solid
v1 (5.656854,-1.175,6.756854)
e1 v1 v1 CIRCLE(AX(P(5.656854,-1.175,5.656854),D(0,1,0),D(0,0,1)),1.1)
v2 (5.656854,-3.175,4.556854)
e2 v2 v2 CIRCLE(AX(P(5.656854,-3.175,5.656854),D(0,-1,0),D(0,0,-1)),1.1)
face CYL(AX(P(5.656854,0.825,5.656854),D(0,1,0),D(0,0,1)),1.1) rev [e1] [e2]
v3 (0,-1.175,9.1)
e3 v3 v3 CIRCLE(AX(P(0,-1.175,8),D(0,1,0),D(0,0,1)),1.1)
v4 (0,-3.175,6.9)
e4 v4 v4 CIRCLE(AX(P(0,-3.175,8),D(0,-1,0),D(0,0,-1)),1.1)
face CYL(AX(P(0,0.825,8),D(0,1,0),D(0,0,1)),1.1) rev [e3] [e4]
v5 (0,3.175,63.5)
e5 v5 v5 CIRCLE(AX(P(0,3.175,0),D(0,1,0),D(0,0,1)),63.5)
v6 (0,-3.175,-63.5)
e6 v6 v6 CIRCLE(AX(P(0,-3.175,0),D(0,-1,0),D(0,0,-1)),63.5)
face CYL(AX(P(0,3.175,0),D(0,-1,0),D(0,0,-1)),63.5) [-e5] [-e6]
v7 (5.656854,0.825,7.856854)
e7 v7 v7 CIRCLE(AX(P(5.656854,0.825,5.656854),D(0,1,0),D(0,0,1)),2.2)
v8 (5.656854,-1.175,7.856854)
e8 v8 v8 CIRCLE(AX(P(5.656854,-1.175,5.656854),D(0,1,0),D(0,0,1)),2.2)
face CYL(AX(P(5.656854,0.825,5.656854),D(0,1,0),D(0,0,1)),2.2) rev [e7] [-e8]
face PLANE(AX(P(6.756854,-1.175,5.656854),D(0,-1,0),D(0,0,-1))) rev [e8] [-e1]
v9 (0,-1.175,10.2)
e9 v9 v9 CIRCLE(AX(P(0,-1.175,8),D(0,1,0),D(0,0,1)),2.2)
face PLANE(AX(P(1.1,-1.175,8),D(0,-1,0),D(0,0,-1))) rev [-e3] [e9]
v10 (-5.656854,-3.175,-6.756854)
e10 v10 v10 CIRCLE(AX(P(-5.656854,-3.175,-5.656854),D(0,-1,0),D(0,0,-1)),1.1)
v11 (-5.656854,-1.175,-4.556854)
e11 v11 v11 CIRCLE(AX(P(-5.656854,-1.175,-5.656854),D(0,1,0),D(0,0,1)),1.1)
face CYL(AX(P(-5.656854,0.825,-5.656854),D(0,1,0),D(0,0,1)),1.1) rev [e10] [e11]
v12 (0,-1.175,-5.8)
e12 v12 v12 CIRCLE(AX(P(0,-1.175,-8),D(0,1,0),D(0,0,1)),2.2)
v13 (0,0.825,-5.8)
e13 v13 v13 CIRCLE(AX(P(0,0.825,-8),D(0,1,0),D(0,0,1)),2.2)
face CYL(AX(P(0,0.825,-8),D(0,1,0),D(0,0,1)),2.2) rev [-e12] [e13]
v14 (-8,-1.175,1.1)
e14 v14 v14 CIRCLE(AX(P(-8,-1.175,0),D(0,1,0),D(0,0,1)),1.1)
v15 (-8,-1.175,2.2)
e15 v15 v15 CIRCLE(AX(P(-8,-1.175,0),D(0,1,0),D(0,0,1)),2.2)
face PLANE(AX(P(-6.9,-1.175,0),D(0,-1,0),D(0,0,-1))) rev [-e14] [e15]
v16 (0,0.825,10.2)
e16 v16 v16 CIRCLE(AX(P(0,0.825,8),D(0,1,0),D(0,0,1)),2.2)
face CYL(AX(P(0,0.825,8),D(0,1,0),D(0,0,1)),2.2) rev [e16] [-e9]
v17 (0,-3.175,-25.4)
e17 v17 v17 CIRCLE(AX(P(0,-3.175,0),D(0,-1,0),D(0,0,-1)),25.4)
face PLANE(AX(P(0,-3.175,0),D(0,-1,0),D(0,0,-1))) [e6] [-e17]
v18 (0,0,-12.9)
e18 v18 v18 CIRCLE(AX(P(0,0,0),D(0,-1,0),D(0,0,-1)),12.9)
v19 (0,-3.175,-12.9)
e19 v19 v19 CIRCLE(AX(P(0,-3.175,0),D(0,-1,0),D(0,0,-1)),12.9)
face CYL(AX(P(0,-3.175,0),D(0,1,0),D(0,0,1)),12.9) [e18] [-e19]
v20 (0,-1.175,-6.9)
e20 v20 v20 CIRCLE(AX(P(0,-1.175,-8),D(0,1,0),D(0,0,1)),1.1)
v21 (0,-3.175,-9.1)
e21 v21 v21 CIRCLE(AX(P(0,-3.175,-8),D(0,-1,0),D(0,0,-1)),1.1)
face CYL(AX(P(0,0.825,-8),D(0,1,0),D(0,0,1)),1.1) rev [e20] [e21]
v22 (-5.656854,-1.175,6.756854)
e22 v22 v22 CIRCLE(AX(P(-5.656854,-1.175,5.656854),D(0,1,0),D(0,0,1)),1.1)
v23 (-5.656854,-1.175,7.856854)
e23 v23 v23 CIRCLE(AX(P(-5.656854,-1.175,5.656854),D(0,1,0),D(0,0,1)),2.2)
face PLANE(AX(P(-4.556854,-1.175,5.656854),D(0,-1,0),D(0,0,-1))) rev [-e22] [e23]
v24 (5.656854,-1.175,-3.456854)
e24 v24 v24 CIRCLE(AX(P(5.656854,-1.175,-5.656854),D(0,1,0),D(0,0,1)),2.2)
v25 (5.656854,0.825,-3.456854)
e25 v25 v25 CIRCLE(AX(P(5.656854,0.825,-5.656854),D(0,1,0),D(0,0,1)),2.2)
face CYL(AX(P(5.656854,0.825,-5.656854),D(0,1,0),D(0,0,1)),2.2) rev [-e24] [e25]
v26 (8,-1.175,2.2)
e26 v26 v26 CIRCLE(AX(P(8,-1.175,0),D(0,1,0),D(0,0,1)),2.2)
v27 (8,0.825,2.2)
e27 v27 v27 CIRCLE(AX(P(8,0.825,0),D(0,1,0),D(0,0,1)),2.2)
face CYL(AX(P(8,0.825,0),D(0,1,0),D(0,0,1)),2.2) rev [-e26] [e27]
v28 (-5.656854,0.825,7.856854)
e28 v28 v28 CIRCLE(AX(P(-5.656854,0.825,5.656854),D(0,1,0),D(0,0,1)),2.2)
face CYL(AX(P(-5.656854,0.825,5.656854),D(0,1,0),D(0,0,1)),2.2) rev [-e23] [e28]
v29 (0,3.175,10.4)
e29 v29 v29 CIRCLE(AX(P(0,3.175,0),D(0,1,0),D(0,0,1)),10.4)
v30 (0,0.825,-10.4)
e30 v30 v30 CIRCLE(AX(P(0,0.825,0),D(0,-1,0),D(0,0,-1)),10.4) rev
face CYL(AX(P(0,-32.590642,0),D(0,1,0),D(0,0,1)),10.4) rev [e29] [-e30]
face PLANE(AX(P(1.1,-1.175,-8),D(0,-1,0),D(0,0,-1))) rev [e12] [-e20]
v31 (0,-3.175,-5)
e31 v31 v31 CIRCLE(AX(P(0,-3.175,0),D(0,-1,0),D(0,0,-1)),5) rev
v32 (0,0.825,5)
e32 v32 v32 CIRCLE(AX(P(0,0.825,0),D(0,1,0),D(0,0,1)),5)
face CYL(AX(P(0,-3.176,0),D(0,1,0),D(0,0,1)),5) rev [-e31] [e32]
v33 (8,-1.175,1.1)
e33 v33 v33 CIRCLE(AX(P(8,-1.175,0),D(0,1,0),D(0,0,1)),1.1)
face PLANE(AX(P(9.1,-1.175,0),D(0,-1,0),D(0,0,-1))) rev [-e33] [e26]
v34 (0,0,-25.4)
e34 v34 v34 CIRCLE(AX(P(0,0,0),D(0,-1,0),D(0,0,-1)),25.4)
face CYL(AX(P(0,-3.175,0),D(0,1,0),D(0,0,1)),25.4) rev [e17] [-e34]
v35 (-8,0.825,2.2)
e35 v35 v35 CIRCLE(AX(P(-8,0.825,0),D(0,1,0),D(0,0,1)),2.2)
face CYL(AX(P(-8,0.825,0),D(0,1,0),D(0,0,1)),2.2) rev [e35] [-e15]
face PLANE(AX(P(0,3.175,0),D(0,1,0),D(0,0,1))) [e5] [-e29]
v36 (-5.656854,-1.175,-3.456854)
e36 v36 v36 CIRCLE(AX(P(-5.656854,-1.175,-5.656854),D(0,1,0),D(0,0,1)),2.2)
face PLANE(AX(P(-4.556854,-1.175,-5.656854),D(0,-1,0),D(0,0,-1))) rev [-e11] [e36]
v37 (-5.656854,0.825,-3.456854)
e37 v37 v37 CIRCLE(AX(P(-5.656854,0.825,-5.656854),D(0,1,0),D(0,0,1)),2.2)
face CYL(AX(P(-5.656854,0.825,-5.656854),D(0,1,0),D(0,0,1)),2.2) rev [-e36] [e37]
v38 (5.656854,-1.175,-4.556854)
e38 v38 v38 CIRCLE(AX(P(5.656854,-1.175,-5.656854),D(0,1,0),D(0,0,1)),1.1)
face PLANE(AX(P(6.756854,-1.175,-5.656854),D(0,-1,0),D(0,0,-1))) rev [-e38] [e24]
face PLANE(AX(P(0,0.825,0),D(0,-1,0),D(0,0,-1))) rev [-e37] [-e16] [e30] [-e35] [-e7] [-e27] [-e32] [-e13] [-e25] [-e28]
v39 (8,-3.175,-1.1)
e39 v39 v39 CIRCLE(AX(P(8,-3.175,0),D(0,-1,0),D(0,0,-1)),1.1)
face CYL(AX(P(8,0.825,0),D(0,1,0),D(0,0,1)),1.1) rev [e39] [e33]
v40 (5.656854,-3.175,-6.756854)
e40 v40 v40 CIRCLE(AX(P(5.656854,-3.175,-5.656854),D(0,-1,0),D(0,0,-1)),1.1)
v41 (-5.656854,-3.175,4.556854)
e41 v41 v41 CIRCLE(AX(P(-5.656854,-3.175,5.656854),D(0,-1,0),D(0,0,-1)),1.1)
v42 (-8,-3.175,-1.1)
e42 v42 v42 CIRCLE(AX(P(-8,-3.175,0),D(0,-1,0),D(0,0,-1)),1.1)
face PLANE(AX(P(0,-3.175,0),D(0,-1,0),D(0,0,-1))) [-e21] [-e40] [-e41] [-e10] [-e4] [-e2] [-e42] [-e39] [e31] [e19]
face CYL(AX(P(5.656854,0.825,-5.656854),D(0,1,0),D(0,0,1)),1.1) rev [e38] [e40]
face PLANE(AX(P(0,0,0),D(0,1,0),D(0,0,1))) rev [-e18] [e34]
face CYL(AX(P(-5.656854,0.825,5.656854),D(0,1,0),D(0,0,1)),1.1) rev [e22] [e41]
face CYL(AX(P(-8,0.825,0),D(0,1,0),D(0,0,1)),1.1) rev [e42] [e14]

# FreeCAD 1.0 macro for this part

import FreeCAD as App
import Part
import Sketcher

V = App.Vector
Q = App.Units.Quantity

doc = App.newDocument("Part")
body = doc.addObject("PartDesign::Body", "Body")

# Sketch on XZ plane
sketch1 = body.newObject("Sketcher::SketchObject", "Sketch")
sketch1.AttachmentSupport = (doc.getObject("XZ_Plane"), [""])
sketch1.MapMode = "FlatFace"
sketch1.addGeometry(Part.Circle(V(0, 0, 0), V(0, 0, 1), 64), False)
sketch1.addConstraint(Sketcher.Constraint("Coincident", 0, 3, -1, 1))
sketch1.addConstraint(Sketcher.Constraint("Diameter", 0, Q("127 mm")))
pad1 = body.newObject("PartDesign::Pad", "Pad")
pad1.Profile = sketch1
pad1.Length = 3.175
pad1.Reversed = True

# Sketch on XZ plane
sketch2 = body.newObject("Sketcher::SketchObject", "Sketch001")
sketch2.AttachmentSupport = (doc.getObject("XZ_Plane"), [""])
sketch2.MapMode = "FlatFace"
sketch2.addGeometry(Part.Circle(V(0, 0, 0), V(0, 0, 1), 13), False)
sketch2.addConstraint(Sketcher.Constraint("Coincident", 0, 3, -1, 1))
sketch2.addConstraint(Sketcher.Constraint("Diameter", 0, Q("25.8 mm")))
pad2 = body.newObject("PartDesign::Pad", "Pad001")
pad2.Profile = sketch2
pad2.Length = 3.175

# Sketch on XZ plane
sketch3 = body.newObject("Sketcher::SketchObject", "Sketch002")
sketch3.AttachmentSupport = (doc.getObject("XZ_Plane"), [""])
sketch3.MapMode = "FlatFace"
sketch3.AttachmentOffset = App.Placement(V(0, 0, 3.175), App.Rotation())
sketch3.addGeometry(Part.Circle(V(0, 0, 0), V(0, 0, 1), 64), False)
sketch3.addGeometry(Part.Circle(V(0, 0, 0), V(0, 0, 1), 25), False)
sketch3.addConstraint(Sketcher.Constraint("Coincident", 0, 3, -1, 1))
sketch3.addConstraint(Sketcher.Constraint("Coincident", 1, 3, -1, 1))
sketch3.addConstraint(Sketcher.Constraint("Diameter", 0, Q("127 mm")))
sketch3.addConstraint(Sketcher.Constraint("Diameter", 1, Q("50.8 mm")))
pad3 = body.newObject("PartDesign::Pad", "Pad002")
pad3.Profile = sketch3
pad3.Length = 3.175
pad3.Reversed = True

# Sketch on XZ plane
sketch4 = body.newObject("Sketcher::SketchObject", "Sketch003")
sketch4.AttachmentSupport = (doc.getObject("XZ_Plane"), [""])
sketch4.MapMode = "FlatFace"
sketch4.AttachmentOffset = App.Placement(V(0, 0, -3.175), App.Rotation())
sketch4.addGeometry(Part.Circle(V(0, 0, 0), V(0, 0, 1), 10), False)
sketch4.addConstraint(Sketcher.Constraint("Coincident", 0, 3, -1, 1))
sketch4.addConstraint(Sketcher.Constraint("Diameter", 0, Q("20.8 mm")))
pocket1 = body.newObject("PartDesign::Pocket", "Pocket")
pocket1.Profile = sketch4
pocket1.Length = 2.35
pocket1.Reversed = True

# Sketch on XZ plane
sketch5 = body.newObject("Sketcher::SketchObject", "Sketch004")
sketch5.AttachmentSupport = (doc.getObject("XZ_Plane"), [""])
sketch5.MapMode = "FlatFace"
sketch5.AttachmentOffset = App.Placement(V(0, 0, -0.825), App.Rotation())
sketch5.addGeometry(Part.Circle(V(0, 0, 0), V(0, 0, 1), 5), False)
sketch5.addConstraint(Sketcher.Constraint("Coincident", 0, 3, -1, 1))
sketch5.addConstraint(Sketcher.Constraint("Diameter", 0, Q("10 mm")))
pocket2 = body.newObject("PartDesign::Pocket", "Pocket001")
pocket2.Profile = sketch5
pocket2.Length = 4
pocket2.Reversed = True

# Sketch on XZ plane
sketch6 = body.newObject("Sketcher::SketchObject", "Sketch005")
sketch6.AttachmentSupport = (doc.getObject("XZ_Plane"), [""])
sketch6.MapMode = "FlatFace"
sketch6.AttachmentOffset = App.Placement(V(0, 0, -0.825), App.Rotation())
sketch6.addGeometry(Part.Circle(V(-5.7, -5.7, 0), V(0, 0, 1), 1.1), False)
sketch6.addGeometry(Part.Circle(V(0, -8, 0), V(0, 0, 1), 1.1), False)
sketch6.addGeometry(Part.Circle(V(5.7, -5.7, 0), V(0, 0, 1), 1.1), False)
sketch6.addGeometry(Part.Circle(V(8, 0, 0), V(0, 0, 1), 1.1), False)
sketch6.addGeometry(Part.Circle(V(5.7, 5.7, 0), V(0, 0, 1), 1.1), False)
sketch6.addGeometry(Part.Circle(V(0, 8, 0), V(0, 0, 1), 1.1), False)
sketch6.addGeometry(Part.Circle(V(-5.7, 5.7, 0), V(0, 0, 1), 1.1), False)
sketch6.addGeometry(Part.Circle(V(-8, 0, 0), V(0, 0, 1), 1.1), False)
sketch6.addConstraint(Sketcher.Constraint("Equal", 0, 1))
sketch6.addConstraint(Sketcher.Constraint("Equal", 1, 2))
sketch6.addConstraint(Sketcher.Constraint("Equal", 2, 3))
sketch6.addConstraint(Sketcher.Constraint("Equal", 3, 4))
sketch6.addConstraint(Sketcher.Constraint("Equal", 4, 5))
sketch6.addConstraint(Sketcher.Constraint("Equal", 5, 6))
sketch6.addConstraint(Sketcher.Constraint("Equal", 6, 7))
sketch6.addConstraint(Sketcher.Constraint("Symmetric", 0, 3, 4, 3, -1, 1))
sketch6.addConstraint(Sketcher.Constraint("Symmetric", 1, 3, 5, 3, -1, 1))
sketch6.addConstraint(Sketcher.Constraint("Symmetric", 2, 3, 6, 3, -1, 1))
sketch6.addConstraint(Sketcher.Constraint("Symmetric", 3, 3, 7, 3, -1, 1))
sketch6.addConstraint(Sketcher.Constraint("Symmetric", 0, 3, 2, 3, -2))
sketch6.addConstraint(Sketcher.Constraint("PointOnObject", 1, 3, -2))
sketch6.addConstraint(Sketcher.Constraint("PointOnObject", 3, 3, -1))
sketch6.addConstraint(Sketcher.Constraint("Diameter", 0, Q("2.2 mm")))
sketch6.addConstraint(Sketcher.Constraint("DistanceY", 1, 3, -1, 1, Q("8 mm")))
sketch6.addConstraint(Sketcher.Constraint("DistanceX", -1, 1, 3, 3, Q("8 mm")))
sketch6.addConstraint(Sketcher.Constraint("DistanceX", 0, 3, 2, 3, Q("11.313709 mm")))
sketch6.addConstraint(Sketcher.Constraint("DistanceY", 2, 3, 4, 3, Q("11.313709 mm")))
doc.recompute()
hole = body.newObject("PartDesign::Hole", "Hole")
hole.Profile = sketch6
hole.ThreadType = "None"
hole.Diameter = 2.2
hole.DepthType = "Dimension"
hole.Depth = 6
hole.DrillPoint = "Angled"
hole.DrillPointAngle = 118
hole.HoleCutType = "Counterbore"
hole.HoleCutDiameter = 4.4
hole.HoleCutDepth = 2
hole.Reversed = True

doc.recompute()
